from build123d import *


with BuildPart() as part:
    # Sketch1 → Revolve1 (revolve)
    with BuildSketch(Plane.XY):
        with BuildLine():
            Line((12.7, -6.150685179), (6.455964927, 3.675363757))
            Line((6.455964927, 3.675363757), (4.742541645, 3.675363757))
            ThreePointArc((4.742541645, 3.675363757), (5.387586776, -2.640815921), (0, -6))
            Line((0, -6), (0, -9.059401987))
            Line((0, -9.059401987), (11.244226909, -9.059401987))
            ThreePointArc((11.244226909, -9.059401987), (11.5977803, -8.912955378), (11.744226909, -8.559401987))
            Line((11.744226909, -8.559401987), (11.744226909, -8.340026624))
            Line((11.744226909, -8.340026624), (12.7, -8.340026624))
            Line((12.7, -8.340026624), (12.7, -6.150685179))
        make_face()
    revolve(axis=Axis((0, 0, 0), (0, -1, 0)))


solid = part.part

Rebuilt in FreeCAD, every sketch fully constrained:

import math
import FreeCAD as App
import Part
import Sketcher
from FreeCAD import Vector

doc = App.newDocument("Part")
body = doc.addObject("PartDesign::Body", "Body")

# Sketch on XY plane
sketch1 = doc.addObject("Sketcher::SketchObject", "Sketch")
body.addObject(sketch1)
sketch1.AttachmentSupport = (doc.XY_Plane, [""])
sketch1.MapMode = "FlatFace"
sketch1.addGeometry([
    Part.LineSegment(Vector(12.7, -6.150685, 0), Vector(6.455965, 3.675364, 0)),  # 0
    Part.LineSegment(Vector(6.455965, 3.675364, 0), Vector(4.742542, 3.675364, 0)),  # 1
    Part.ArcOfCircle(Part.Circle(Vector(0, 0, 0), Vector(0, 0, 1), 6), math.radians(-90), math.radians(37.774884)),  # 2
    Part.LineSegment(Vector(0, -6, 0), Vector(0, -9.059402, 0)),  # 3
    Part.LineSegment(Vector(0, -9.059402, 0), Vector(11.244227, -9.059402, 0)),  # 4
    Part.ArcOfCircle(Part.Circle(Vector(11.244227, -8.559402, 0), Vector(0, 0, 1), 0.5), math.radians(-90), math.radians(0)),  # 5
    Part.LineSegment(Vector(11.744227, -8.559402, 0), Vector(11.744227, -8.340027, 0)),  # 6
    Part.LineSegment(Vector(11.744227, -8.340027, 0), Vector(12.7, -8.340027, 0)),  # 7
    Part.LineSegment(Vector(12.7, -8.340027, 0), Vector(12.7, -6.150685, 0)),  # 8
], False)
sketch1.addConstraint([
    Sketcher.Constraint("Coincident", 0, 2, 1, 1),
    Sketcher.Constraint("Coincident", 1, 2, 2, 2),
    Sketcher.Constraint("Coincident", 2, 1, 3, 1),
    Sketcher.Constraint("Coincident", 3, 2, 4, 1),
    Sketcher.Constraint("Tangent", 4, 2, 5, 1),
    Sketcher.Constraint("Tangent", 5, 2, 6, 1),
    Sketcher.Constraint("Coincident", 6, 2, 7, 1),
    Sketcher.Constraint("Coincident", 7, 2, 8, 1),
    Sketcher.Constraint("Coincident", 8, 2, 0, 1),
    Sketcher.Constraint("Horizontal", 1),
    Sketcher.Constraint("Vertical", 3),
    Sketcher.Constraint("Horizontal", 4),
    Sketcher.Constraint("Vertical", 6),
    Sketcher.Constraint("Horizontal", 7),
    Sketcher.Constraint("Vertical", 8),
    Sketcher.Constraint("Coincident", 2, 3, -1, 1),
    Sketcher.Constraint("PointOnObject", 2, 1, -2),
    Sketcher.Constraint("Radius", 2, 6.0),
    Sketcher.Constraint("Radius", 5, 0.5),
    Sketcher.Constraint("DistanceX", -1, 1, 7, 2, 12.7),
    Sketcher.Constraint("DistanceY", 3, 2, 3, 1, 3.059402),
    Sketcher.Constraint("DistanceY", 8, 1, 8, 2, 2.189341),
    Sketcher.Constraint("Distance", 0, 11.642131),
    Sketcher.Constraint("DistanceX", 1, 2, 1, 1, 1.713423),
    Sketcher.Constraint("DistanceX", 4, 1, 4, 2, 11.244227),
    Sketcher.Constraint("DistanceY", 6, 1, 6, 2, 0.219375),
])
revolution = doc.addObject("PartDesign::Revolution", "Revolution")
body.addObject(revolution)
revolution.Profile = sketch1
revolution.ReferenceAxis = (sketch1, ["V_Axis"])
revolution.Angle = 360

doc.recompute()
